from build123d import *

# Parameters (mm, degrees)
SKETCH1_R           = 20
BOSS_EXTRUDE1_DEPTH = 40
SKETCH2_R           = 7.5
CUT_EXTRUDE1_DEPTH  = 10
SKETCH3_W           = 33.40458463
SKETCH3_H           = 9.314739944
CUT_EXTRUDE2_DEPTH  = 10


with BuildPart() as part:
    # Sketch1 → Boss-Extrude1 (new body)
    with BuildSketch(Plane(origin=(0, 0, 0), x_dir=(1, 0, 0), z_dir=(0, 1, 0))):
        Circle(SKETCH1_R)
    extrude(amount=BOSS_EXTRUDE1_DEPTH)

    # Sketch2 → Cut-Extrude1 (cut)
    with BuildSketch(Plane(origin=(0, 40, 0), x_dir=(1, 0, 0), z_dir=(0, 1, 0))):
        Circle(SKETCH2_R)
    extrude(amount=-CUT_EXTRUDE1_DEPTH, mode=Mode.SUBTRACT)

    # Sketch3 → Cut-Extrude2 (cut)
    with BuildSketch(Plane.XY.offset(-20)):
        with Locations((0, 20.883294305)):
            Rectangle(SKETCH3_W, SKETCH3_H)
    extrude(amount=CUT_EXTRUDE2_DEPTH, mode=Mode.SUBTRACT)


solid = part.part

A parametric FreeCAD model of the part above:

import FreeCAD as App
import Part
import Sketcher

V = App.Vector
Q = App.Units.Quantity

doc = App.newDocument("Part")
body = doc.addObject("PartDesign::Body", "Body")

sketch1 = body.newObject("Sketcher::SketchObject", "Sketch")
sketch1.AttachmentSupport = (doc.getObject("XZ_Plane"), [""])
sketch1.MapMode = "FlatFace"
sketch1.addGeometry(Part.Circle(V(0, 0, 0), V(0, 0, 1), 20), False)
sketch1.addConstraint(Sketcher.Constraint("Coincident", 0, 3, -1, 1))
sketch1.addConstraint(Sketcher.Constraint("Diameter", 0, Q("40 mm")))
pad1 = body.newObject("PartDesign::Pad", "Pad")
pad1.Profile = sketch1
pad1.Length = 40
pad1.Reversed = True

sketch2 = body.newObject("Sketcher::SketchObject", "Sketch001")
sketch2.AttachmentSupport = (doc.getObject("XZ_Plane"), [""])
sketch2.MapMode = "FlatFace"
sketch2.AttachmentOffset = App.Placement(V(0, 0, -40), App.Rotation())
sketch2.addGeometry(Part.Circle(V(0, 0, 0), V(0, 0, 1), 7.5), False)
sketch2.addConstraint(Sketcher.Constraint("Coincident", 0, 3, -1, 1))
sketch2.addConstraint(Sketcher.Constraint("Diameter", 0, Q("15 mm")))
pocket1 = body.newObject("PartDesign::Pocket", "Pocket")
pocket1.Profile = sketch2
pocket1.Length = 10
pocket1.Reversed = True

sketch3 = body.newObject("Sketcher::SketchObject", "Sketch002")
sketch3.AttachmentSupport = (doc.getObject("XY_Plane"), [""])
sketch3.MapMode = "FlatFace"
sketch3.AttachmentOffset = App.Placement(V(0, 0, -20), App.Rotation())
sketch3.addGeometry(Part.LineSegment(V(-16.702292, 25.540664, 0), V(-16.702292, 16.225924, 0)), False)
sketch3.addGeometry(Part.LineSegment(V(-16.702292, 16.225924, 0), V(16.702292, 16.225924, 0)), False)
sketch3.addGeometry(Part.LineSegment(V(16.702292, 16.225924, 0), V(16.702292, 25.540664, 0)), False)
sketch3.addGeometry(Part.LineSegment(V(16.702292, 25.540664, 0), V(-16.702292, 25.540664, 0)), False)
sketch3.addConstraint(Sketcher.Constraint("Coincident", 0, 2, 1, 1))
sketch3.addConstraint(Sketcher.Constraint("Coincident", 1, 2, 2, 1))
sketch3.addConstraint(Sketcher.Constraint("Coincident", 2, 2, 3, 1))
sketch3.addConstraint(Sketcher.Constraint("Coincident", 3, 2, 0, 1))
sketch3.addConstraint(Sketcher.Constraint("Vertical", 0))
sketch3.addConstraint(Sketcher.Constraint("Horizontal", 1))
sketch3.addConstraint(Sketcher.Constraint("Vertical", 2))
sketch3.addConstraint(Sketcher.Constraint("Horizontal", 3))
sketch3.addConstraint(Sketcher.Constraint("DistanceY", 0, 2, 0, 1, Q("9.31474 mm")))
sketch3.addConstraint(Sketcher.Constraint("DistanceX", 1, 1, 1, 2, Q("33.404585 mm")))
sketch3.addConstraint(Sketcher.Constraint("DistanceX", 0, 2, -1, 1, Q("16.702292 mm")))
sketch3.addConstraint(Sketcher.Constraint("DistanceY", -1, 1, 0, 2, Q("16.225924 mm")))
pocket2 = body.newObject("PartDesign::Pocket", "Pocket001")
pocket2.Profile = sketch3
pocket2.Length = 10
pocket2.Reversed = True

doc.recompute()
